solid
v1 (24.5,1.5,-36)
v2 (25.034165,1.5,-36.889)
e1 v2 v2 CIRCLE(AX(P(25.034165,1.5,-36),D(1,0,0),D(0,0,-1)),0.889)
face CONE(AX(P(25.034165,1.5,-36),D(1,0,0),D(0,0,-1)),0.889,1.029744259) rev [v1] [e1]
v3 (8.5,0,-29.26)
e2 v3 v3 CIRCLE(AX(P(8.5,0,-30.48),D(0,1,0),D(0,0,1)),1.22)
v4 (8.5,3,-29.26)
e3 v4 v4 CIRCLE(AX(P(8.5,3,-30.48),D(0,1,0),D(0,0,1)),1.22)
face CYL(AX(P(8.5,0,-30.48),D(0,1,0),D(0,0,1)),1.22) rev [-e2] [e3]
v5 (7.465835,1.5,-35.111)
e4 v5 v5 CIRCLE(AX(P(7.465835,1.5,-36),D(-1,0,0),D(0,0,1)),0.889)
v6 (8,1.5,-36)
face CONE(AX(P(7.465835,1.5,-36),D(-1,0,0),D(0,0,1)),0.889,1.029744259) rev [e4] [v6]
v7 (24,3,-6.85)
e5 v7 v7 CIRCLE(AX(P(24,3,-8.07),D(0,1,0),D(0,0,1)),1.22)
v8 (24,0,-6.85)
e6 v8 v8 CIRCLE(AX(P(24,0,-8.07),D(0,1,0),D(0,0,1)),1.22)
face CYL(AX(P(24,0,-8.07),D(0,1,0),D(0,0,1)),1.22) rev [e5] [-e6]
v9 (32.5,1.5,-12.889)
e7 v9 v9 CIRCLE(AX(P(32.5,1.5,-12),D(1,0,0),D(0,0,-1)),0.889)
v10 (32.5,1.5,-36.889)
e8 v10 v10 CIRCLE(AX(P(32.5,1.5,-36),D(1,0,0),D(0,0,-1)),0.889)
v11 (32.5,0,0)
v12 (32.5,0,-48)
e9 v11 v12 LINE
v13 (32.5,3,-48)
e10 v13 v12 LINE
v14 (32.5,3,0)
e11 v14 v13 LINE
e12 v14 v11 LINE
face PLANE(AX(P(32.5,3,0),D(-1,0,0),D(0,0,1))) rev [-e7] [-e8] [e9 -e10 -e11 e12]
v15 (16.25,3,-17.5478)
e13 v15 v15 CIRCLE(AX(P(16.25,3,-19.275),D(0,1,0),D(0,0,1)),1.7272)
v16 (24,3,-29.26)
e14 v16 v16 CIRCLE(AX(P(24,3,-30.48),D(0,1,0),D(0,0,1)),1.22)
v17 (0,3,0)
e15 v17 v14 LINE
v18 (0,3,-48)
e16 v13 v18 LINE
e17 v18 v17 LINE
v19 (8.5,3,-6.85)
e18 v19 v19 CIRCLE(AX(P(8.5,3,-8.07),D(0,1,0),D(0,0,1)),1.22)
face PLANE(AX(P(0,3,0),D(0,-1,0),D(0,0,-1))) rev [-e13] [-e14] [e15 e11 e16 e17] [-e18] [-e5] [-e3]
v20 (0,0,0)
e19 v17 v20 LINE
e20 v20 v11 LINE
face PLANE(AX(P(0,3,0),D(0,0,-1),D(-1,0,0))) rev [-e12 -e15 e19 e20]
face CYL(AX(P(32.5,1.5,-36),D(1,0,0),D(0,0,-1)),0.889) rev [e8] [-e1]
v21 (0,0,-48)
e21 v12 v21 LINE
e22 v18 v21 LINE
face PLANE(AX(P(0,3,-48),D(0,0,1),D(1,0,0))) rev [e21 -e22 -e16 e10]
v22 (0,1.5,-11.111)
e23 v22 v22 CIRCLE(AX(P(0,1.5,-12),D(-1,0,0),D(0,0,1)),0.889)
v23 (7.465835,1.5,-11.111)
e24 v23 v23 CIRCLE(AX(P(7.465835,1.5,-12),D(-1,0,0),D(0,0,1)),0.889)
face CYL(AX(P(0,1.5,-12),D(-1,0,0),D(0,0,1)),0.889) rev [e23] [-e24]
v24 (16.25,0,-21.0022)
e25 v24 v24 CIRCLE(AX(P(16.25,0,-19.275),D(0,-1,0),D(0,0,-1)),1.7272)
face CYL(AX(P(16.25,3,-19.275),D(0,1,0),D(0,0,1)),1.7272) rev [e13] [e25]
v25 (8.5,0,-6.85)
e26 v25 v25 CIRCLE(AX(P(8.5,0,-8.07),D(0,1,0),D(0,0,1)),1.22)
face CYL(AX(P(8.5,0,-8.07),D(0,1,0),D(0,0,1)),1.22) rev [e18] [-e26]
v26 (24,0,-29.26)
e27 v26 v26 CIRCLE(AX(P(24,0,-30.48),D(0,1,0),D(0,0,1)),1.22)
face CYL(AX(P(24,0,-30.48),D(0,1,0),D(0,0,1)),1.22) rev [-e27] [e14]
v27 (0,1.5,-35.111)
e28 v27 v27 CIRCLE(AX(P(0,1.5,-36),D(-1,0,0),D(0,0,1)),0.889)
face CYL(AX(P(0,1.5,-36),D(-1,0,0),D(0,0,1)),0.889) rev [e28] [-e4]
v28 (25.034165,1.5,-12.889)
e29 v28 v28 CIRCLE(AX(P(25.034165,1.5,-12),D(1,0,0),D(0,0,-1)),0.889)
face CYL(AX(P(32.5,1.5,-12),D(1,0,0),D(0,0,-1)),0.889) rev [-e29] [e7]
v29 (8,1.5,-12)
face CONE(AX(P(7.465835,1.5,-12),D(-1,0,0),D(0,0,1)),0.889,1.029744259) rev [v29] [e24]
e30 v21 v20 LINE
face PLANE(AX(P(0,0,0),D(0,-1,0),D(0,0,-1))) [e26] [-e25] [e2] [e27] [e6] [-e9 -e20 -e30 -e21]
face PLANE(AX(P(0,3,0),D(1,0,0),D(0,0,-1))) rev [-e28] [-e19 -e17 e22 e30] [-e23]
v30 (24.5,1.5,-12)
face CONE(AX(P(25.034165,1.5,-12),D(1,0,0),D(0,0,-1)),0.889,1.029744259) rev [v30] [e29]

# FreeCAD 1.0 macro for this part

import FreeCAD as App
import Part
import Sketcher

V = App.Vector


def add_polygon(sketch, points):
    """Adds a closed chain of lines whose ends are joined by coincident constraints."""
    first, n = sketch.GeometryCount, len(points)
    for a, b in zip(points, points[1:] + points[:1]):
        sketch.addGeometry(Part.LineSegment(App.Vector(*a, 0), App.Vector(*b, 0)), False)
    for i in range(n):
        sketch.addConstraint(Sketcher.Constraint("Coincident", first + i, 2, first + (i + 1) % n, 1))

doc = App.newDocument("Part")
body = doc.addObject("PartDesign::Body", "Body")

# Sketch on XZ plane
sketch1 = body.newObject("Sketcher::SketchObject", "Sketch")
sketch1.AttachmentSupport = (doc.getObject("XZ_Plane"), [""])
sketch1.MapMode = "FlatFace"
add_polygon(sketch1, [(0, -48), (0, 0), (32.5, 0), (32.5, -48)])  # lines 0-3
sketch1.addConstraint([
    Sketcher.Constraint("Vertical", 0),
    Sketcher.Constraint("Horizontal", 1),
    Sketcher.Constraint("Vertical", 2),
    Sketcher.Constraint("Horizontal", 3),
    Sketcher.Constraint("Coincident", 0, 2, -1, 1),
    Sketcher.Constraint("DistanceY", 0, 1, 0, 2, 48.0),
    Sketcher.Constraint("DistanceX", 1, 1, 1, 2, 32.5),
])
pad1 = body.newObject("PartDesign::Pad", "Pad")
pad1.Profile = sketch1
pad1.Length = 3
pad1.Reversed = True

# Sketch on YZ plane
sketch2 = body.newObject("Sketcher::SketchObject", "Sketch001")
sketch2.AttachmentSupport = (doc.getObject("YZ_Plane"), [""])
sketch2.MapMode = "FlatFace"
sketch2.addGeometry([
    Part.Circle(V(1.5, -36, 0), V(0, 0, 1), 0.889),
    Part.Circle(V(1.5, -12, 0), V(0, 0, 1), 0.889),
], False)
sketch2.addConstraint([
    Sketcher.Constraint("Equal", 0, 1),
    Sketcher.Constraint("Vertical", 0, 3, 1, 3),
    Sketcher.Constraint("Diameter", 0, 1.778),
    Sketcher.Constraint("DistanceY", 0, 3, -1, 1, 36.0),
    Sketcher.Constraint("DistanceY", 1, 3, -1, 1, 12.0),
    Sketcher.Constraint("DistanceX", -1, 1, 0, 3, 1.5),
])
doc.recompute()
hole = body.newObject("PartDesign::Hole", "Hole")
hole.Profile = sketch2
hole.ThreadType = "None"
hole.Diameter = 1.778
hole.DepthType = "Dimension"
hole.Depth = 7.465835
hole.DrillPoint = "Angled"
hole.DrillPointAngle = 118
hole.Reversed = True

# Sketch on YZ plane
sketch3 = body.newObject("Sketcher::SketchObject", "Sketch002")
sketch3.AttachmentSupport = (doc.getObject("YZ_Plane"), [""])
sketch3.MapMode = "FlatFace"
sketch3.AttachmentOffset = App.Placement(V(0, 0, 32.5), App.Rotation())
sketch3.addGeometry([
    Part.Circle(V(1.5, -12, 0), V(0, 0, 1), 0.889),
    Part.Circle(V(1.5, -36, 0), V(0, 0, 1), 0.889),
], False)
sketch3.addConstraint([
    Sketcher.Constraint("Equal", 0, 1),
    Sketcher.Constraint("Vertical", 0, 3, 1, 3),
    Sketcher.Constraint("Diameter", 0, 1.778),
    Sketcher.Constraint("DistanceY", 0, 3, -1, 1, 12.0),
    Sketcher.Constraint("DistanceY", 1, 3, -1, 1, 36.0),
    Sketcher.Constraint("DistanceX", -1, 1, 0, 3, 1.5),
])
doc.recompute()
hole2 = body.newObject("PartDesign::Hole", "Hole001")
hole2.Profile = sketch3
hole2.ThreadType = "None"
hole2.Diameter = 1.778
hole2.DepthType = "Dimension"
hole2.Depth = 7.465835
hole2.DrillPoint = "Angled"
hole2.DrillPointAngle = 118

# Sketch on XZ plane
sketch4 = body.newObject("Sketcher::SketchObject", "Sketch003")
sketch4.AttachmentSupport = (doc.getObject("XZ_Plane"), [""])
sketch4.MapMode = "FlatFace"
sketch4.AttachmentOffset = App.Placement(V(0, 0, -3), App.Rotation())
sketch4.addGeometry(Part.Circle(V(16.25, -19.275, 0), V(0, 0, 1), 1.7272), False)
sketch4.addConstraint([
    Sketcher.Constraint("Diameter", 0, 3.4544),
    Sketcher.Constraint("DistanceX", -1, 1, 0, 3, 16.25),
    Sketcher.Constraint("DistanceY", 0, 3, -1, 1, 19.275),
])
doc.recompute()
hole3 = body.newObject("PartDesign::Hole", "Hole002")
hole3.Profile = sketch4
hole3.ThreadType = "None"
hole3.Diameter = 3.4544
hole3.DepthType = "Dimension"
hole3.Depth = 9.672194
hole3.DrillPoint = "Angled"
hole3.DrillPointAngle = 118
hole3.Reversed = True

# Sketch on XZ plane
sketch5 = body.newObject("Sketcher::SketchObject", "Sketch004")
sketch5.AttachmentSupport = (doc.getObject("XZ_Plane"), [""])
sketch5.MapMode = "FlatFace"
sketch5.AttachmentOffset = App.Placement(V(0, 0, -3), App.Rotation())
sketch5.addGeometry([
    Part.Circle(V(8.5, -30.48, 0), V(0, 0, 1), 1.22),
    Part.Circle(V(24, -30.48, 0), V(0, 0, 1), 1.22),
    Part.Circle(V(8.5, -8.07, 0), V(0, 0, 1), 1.22),
    Part.Circle(V(24, -8.07, 0), V(0, 0, 1), 1.22),
], False)
sketch5.addConstraint([
    Sketcher.Constraint("Equal", 0, 1),
    Sketcher.Constraint("Equal", 1, 2),
    Sketcher.Constraint("Equal", 2, 3),
    Sketcher.Constraint("Horizontal", 0, 3, 1, 3),
    Sketcher.Constraint("Horizontal", 2, 3, 3, 3),
    Sketcher.Constraint("Vertical", 0, 3, 2, 3),
    Sketcher.Constraint("Vertical", 1, 3, 3, 3),
    Sketcher.Constraint("Diameter", 0, 2.44),
    Sketcher.Constraint("DistanceX", -1, 1, 1, 3, 24.0),
    Sketcher.Constraint("DistanceX", -1, 1, 0, 3, 8.5),
    Sketcher.Constraint("DistanceY", 0, 3, -1, 1, 30.48),
    Sketcher.Constraint("DistanceY", 2, 3, -1, 1, 8.07),
])
pocket1 = body.newObject("PartDesign::Pocket", "Pocket")
pocket1.Profile = sketch5
pocket1.Length = 3
pocket1.Reversed = True

doc.recompute()
